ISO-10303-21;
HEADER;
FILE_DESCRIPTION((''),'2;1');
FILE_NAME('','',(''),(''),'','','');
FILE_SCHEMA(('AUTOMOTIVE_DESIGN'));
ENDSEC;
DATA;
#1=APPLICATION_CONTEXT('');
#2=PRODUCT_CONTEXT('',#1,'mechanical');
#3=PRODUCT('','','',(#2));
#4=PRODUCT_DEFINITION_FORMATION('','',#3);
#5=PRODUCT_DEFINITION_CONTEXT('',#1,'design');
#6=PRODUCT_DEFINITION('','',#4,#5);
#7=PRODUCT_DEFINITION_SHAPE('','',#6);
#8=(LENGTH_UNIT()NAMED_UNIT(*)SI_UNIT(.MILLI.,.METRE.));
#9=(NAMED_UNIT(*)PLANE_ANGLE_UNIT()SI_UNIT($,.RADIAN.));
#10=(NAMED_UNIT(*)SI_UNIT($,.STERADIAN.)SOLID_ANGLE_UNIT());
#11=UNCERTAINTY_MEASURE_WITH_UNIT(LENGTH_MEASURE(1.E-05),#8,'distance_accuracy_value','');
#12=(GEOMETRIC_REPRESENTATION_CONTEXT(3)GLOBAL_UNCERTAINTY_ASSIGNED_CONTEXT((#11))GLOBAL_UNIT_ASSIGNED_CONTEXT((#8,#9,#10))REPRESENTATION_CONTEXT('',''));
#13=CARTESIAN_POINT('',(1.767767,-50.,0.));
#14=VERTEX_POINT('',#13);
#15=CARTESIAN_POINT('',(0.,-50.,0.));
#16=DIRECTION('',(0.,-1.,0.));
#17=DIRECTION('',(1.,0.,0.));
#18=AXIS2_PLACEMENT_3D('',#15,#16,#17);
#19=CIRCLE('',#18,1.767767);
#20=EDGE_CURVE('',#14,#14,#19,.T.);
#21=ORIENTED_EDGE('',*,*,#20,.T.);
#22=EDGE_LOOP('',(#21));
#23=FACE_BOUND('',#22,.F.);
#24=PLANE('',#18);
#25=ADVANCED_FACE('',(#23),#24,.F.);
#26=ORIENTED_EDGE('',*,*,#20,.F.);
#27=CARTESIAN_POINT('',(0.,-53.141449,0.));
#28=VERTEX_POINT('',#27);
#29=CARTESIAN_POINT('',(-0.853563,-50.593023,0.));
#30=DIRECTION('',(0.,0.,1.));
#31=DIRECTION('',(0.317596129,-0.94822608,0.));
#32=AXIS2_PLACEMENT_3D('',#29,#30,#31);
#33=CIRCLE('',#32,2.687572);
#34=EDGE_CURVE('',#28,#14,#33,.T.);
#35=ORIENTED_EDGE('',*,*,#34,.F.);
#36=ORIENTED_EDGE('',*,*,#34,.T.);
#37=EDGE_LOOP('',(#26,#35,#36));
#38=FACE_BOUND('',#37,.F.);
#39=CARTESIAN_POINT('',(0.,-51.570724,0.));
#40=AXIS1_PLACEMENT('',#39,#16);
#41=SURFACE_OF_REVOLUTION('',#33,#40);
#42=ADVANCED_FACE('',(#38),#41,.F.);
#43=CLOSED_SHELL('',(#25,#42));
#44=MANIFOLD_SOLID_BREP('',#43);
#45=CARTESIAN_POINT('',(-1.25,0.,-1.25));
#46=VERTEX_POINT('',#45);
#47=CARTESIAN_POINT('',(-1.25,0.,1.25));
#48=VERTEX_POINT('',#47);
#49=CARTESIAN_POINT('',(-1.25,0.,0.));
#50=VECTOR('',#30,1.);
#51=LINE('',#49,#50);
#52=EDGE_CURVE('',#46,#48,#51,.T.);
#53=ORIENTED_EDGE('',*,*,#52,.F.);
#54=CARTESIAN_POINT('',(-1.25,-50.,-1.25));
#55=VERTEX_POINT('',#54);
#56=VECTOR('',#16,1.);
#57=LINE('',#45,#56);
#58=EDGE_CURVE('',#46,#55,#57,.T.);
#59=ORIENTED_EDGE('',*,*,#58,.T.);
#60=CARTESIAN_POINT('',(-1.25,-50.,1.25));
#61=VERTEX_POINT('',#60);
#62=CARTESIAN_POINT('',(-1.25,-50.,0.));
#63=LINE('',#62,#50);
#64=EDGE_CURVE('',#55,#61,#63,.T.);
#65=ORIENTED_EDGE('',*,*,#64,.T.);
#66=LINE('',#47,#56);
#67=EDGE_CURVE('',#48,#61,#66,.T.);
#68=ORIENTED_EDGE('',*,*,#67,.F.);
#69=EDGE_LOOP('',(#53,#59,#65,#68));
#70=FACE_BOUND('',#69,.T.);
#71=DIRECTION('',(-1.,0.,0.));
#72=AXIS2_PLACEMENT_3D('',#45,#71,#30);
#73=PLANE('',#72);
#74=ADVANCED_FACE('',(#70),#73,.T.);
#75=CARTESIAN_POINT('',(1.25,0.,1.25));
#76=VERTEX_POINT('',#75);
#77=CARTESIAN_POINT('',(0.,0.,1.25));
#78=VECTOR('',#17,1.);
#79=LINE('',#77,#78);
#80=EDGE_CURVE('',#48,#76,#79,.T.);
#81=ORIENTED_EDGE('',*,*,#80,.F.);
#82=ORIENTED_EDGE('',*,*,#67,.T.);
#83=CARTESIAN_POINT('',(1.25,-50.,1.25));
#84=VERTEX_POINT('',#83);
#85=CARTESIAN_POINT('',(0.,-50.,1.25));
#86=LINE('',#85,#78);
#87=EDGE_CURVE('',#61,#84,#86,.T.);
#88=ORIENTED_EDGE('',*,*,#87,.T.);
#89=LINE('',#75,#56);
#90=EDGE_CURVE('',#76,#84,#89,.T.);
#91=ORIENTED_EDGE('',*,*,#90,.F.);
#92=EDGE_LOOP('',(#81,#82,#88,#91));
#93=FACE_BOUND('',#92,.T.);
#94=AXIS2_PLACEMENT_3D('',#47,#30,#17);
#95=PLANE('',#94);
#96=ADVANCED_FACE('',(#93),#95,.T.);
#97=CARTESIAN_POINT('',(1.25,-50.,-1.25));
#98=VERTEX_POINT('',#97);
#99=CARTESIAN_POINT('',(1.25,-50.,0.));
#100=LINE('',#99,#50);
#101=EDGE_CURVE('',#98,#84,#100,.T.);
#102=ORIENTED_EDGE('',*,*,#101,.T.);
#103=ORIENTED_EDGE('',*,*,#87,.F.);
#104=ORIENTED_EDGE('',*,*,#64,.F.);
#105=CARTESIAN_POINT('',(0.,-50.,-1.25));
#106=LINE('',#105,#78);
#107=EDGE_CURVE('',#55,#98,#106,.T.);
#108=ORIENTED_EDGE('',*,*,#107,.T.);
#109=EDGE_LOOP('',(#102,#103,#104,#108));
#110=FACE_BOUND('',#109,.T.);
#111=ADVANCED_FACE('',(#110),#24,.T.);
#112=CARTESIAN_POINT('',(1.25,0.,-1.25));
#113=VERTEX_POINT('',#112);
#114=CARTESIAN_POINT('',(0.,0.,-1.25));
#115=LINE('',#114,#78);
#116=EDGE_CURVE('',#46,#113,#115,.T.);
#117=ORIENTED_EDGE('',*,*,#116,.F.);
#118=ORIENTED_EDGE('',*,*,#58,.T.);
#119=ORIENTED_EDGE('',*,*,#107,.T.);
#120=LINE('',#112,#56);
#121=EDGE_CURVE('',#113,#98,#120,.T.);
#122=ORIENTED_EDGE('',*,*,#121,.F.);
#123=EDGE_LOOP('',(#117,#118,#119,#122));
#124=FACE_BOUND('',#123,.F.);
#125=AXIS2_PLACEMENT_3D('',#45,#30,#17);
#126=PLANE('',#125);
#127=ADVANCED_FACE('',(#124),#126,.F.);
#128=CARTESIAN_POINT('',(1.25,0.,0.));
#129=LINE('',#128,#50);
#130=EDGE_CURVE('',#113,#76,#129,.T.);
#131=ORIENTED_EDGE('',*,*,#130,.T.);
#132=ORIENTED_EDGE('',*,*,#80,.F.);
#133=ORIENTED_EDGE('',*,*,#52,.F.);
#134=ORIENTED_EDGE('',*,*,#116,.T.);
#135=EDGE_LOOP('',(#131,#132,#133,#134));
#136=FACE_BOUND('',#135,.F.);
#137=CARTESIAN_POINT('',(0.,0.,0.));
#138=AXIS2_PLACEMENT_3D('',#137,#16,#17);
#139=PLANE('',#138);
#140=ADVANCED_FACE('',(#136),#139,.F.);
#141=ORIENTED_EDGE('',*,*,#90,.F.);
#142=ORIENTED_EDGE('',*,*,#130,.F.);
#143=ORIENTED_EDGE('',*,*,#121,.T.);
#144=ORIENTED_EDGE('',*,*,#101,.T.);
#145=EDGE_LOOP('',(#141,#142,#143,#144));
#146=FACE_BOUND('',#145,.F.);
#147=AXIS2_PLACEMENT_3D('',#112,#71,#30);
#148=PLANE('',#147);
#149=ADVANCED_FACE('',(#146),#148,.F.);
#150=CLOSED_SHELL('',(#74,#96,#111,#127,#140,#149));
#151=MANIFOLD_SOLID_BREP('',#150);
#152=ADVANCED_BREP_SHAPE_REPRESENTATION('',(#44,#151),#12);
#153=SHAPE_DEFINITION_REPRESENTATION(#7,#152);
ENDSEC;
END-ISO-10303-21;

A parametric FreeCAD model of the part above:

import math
import FreeCAD as App
import Part
import Sketcher
from FreeCAD import Vector


def add_polygon(sketch, points):
    """Adds a closed chain of lines whose ends are joined by coincident constraints."""
    first, n = sketch.GeometryCount, len(points)
    for a, b in zip(points, points[1:] + points[:1]):
        sketch.addGeometry(Part.LineSegment(App.Vector(*a, 0), App.Vector(*b, 0)), False)
    for i in range(n):
        sketch.addConstraint(Sketcher.Constraint("Coincident", first + i, 2, first + (i + 1) % n, 1))

doc = App.newDocument("Part")
body = doc.addObject("PartDesign::Body", "Body")

# Sketch on XZ plane
sketch1 = body.newObject("Sketcher::SketchObject", "Sketch")
sketch1.AttachmentSupport = (doc.getObject("XZ_Plane"), [""])
sketch1.MapMode = "FlatFace"
add_polygon(sketch1, [(-1.2, 1.2), (-1.2, -1.2), (1.2, -1.2), (1.2, 1.2)])  # lines 0-3
sketch1.addConstraint([
    Sketcher.Constraint("Vertical", 0),
    Sketcher.Constraint("Horizontal", 1),
    Sketcher.Constraint("Vertical", 2),
    Sketcher.Constraint("Horizontal", 3),
    Sketcher.Constraint("Symmetric", 0, 2, 2, 2, -1, 1),
    Sketcher.Constraint("Equal", 3, 0),
    Sketcher.Constraint("DistanceX", 1, 1, 1, 2, 2.5),
])
pad1 = body.newObject("PartDesign::Pad", "Pad")
pad1.Profile = sketch1
pad1.Length = 50
body2 = doc.addObject("PartDesign::Body", "Body001")

# Sketch on XY plane
sketch2 = body2.newObject("Sketcher::SketchObject", "Sketch001")
sketch2.AttachmentSupport = (doc.getObject("XY_Plane001"), [""])
sketch2.MapMode = "FlatFace"
sketch2.addGeometry([
    Part.ArcOfCircle(Part.Circle(Vector(-0.9, -50.6, 0), Vector(0, 0, 1), 2.7), math.radians(-71), math.radians(13)),
    Part.LineSegment(Vector(1.8, -50, 0), Vector(0, -50, 0)),
    Part.LineSegment(Vector(0, -50, 0), Vector(0, -53.1, 0)),
], False)
sketch2.addConstraint([
    Sketcher.Constraint("Coincident", 0, 2, 1, 1),
    Sketcher.Constraint("Coincident", 1, 2, 2, 1),
    Sketcher.Constraint("Coincident", 2, 2, 0, 1),
    Sketcher.Constraint("Horizontal", 1),
    Sketcher.Constraint("Vertical", 2),
    Sketcher.Constraint("PointOnObject", 1, 2, -2),
    Sketcher.Constraint("DistanceY", 0, 2, -1, 1, 50.0),
    Sketcher.Constraint("Radius", 0, 2.687572),
    Sketcher.Constraint("DistanceY", 2, 2, 2, 1, 3.141449),
    Sketcher.Constraint("DistanceX", 1, 2, 1, 1, 1.767767),
])
revolution = body2.newObject("PartDesign::Revolution", "Revolution")
revolution.Profile = sketch2
revolution.ReferenceAxis = (sketch2, ["V_Axis"])
revolution.Angle = 360

doc.recompute()
